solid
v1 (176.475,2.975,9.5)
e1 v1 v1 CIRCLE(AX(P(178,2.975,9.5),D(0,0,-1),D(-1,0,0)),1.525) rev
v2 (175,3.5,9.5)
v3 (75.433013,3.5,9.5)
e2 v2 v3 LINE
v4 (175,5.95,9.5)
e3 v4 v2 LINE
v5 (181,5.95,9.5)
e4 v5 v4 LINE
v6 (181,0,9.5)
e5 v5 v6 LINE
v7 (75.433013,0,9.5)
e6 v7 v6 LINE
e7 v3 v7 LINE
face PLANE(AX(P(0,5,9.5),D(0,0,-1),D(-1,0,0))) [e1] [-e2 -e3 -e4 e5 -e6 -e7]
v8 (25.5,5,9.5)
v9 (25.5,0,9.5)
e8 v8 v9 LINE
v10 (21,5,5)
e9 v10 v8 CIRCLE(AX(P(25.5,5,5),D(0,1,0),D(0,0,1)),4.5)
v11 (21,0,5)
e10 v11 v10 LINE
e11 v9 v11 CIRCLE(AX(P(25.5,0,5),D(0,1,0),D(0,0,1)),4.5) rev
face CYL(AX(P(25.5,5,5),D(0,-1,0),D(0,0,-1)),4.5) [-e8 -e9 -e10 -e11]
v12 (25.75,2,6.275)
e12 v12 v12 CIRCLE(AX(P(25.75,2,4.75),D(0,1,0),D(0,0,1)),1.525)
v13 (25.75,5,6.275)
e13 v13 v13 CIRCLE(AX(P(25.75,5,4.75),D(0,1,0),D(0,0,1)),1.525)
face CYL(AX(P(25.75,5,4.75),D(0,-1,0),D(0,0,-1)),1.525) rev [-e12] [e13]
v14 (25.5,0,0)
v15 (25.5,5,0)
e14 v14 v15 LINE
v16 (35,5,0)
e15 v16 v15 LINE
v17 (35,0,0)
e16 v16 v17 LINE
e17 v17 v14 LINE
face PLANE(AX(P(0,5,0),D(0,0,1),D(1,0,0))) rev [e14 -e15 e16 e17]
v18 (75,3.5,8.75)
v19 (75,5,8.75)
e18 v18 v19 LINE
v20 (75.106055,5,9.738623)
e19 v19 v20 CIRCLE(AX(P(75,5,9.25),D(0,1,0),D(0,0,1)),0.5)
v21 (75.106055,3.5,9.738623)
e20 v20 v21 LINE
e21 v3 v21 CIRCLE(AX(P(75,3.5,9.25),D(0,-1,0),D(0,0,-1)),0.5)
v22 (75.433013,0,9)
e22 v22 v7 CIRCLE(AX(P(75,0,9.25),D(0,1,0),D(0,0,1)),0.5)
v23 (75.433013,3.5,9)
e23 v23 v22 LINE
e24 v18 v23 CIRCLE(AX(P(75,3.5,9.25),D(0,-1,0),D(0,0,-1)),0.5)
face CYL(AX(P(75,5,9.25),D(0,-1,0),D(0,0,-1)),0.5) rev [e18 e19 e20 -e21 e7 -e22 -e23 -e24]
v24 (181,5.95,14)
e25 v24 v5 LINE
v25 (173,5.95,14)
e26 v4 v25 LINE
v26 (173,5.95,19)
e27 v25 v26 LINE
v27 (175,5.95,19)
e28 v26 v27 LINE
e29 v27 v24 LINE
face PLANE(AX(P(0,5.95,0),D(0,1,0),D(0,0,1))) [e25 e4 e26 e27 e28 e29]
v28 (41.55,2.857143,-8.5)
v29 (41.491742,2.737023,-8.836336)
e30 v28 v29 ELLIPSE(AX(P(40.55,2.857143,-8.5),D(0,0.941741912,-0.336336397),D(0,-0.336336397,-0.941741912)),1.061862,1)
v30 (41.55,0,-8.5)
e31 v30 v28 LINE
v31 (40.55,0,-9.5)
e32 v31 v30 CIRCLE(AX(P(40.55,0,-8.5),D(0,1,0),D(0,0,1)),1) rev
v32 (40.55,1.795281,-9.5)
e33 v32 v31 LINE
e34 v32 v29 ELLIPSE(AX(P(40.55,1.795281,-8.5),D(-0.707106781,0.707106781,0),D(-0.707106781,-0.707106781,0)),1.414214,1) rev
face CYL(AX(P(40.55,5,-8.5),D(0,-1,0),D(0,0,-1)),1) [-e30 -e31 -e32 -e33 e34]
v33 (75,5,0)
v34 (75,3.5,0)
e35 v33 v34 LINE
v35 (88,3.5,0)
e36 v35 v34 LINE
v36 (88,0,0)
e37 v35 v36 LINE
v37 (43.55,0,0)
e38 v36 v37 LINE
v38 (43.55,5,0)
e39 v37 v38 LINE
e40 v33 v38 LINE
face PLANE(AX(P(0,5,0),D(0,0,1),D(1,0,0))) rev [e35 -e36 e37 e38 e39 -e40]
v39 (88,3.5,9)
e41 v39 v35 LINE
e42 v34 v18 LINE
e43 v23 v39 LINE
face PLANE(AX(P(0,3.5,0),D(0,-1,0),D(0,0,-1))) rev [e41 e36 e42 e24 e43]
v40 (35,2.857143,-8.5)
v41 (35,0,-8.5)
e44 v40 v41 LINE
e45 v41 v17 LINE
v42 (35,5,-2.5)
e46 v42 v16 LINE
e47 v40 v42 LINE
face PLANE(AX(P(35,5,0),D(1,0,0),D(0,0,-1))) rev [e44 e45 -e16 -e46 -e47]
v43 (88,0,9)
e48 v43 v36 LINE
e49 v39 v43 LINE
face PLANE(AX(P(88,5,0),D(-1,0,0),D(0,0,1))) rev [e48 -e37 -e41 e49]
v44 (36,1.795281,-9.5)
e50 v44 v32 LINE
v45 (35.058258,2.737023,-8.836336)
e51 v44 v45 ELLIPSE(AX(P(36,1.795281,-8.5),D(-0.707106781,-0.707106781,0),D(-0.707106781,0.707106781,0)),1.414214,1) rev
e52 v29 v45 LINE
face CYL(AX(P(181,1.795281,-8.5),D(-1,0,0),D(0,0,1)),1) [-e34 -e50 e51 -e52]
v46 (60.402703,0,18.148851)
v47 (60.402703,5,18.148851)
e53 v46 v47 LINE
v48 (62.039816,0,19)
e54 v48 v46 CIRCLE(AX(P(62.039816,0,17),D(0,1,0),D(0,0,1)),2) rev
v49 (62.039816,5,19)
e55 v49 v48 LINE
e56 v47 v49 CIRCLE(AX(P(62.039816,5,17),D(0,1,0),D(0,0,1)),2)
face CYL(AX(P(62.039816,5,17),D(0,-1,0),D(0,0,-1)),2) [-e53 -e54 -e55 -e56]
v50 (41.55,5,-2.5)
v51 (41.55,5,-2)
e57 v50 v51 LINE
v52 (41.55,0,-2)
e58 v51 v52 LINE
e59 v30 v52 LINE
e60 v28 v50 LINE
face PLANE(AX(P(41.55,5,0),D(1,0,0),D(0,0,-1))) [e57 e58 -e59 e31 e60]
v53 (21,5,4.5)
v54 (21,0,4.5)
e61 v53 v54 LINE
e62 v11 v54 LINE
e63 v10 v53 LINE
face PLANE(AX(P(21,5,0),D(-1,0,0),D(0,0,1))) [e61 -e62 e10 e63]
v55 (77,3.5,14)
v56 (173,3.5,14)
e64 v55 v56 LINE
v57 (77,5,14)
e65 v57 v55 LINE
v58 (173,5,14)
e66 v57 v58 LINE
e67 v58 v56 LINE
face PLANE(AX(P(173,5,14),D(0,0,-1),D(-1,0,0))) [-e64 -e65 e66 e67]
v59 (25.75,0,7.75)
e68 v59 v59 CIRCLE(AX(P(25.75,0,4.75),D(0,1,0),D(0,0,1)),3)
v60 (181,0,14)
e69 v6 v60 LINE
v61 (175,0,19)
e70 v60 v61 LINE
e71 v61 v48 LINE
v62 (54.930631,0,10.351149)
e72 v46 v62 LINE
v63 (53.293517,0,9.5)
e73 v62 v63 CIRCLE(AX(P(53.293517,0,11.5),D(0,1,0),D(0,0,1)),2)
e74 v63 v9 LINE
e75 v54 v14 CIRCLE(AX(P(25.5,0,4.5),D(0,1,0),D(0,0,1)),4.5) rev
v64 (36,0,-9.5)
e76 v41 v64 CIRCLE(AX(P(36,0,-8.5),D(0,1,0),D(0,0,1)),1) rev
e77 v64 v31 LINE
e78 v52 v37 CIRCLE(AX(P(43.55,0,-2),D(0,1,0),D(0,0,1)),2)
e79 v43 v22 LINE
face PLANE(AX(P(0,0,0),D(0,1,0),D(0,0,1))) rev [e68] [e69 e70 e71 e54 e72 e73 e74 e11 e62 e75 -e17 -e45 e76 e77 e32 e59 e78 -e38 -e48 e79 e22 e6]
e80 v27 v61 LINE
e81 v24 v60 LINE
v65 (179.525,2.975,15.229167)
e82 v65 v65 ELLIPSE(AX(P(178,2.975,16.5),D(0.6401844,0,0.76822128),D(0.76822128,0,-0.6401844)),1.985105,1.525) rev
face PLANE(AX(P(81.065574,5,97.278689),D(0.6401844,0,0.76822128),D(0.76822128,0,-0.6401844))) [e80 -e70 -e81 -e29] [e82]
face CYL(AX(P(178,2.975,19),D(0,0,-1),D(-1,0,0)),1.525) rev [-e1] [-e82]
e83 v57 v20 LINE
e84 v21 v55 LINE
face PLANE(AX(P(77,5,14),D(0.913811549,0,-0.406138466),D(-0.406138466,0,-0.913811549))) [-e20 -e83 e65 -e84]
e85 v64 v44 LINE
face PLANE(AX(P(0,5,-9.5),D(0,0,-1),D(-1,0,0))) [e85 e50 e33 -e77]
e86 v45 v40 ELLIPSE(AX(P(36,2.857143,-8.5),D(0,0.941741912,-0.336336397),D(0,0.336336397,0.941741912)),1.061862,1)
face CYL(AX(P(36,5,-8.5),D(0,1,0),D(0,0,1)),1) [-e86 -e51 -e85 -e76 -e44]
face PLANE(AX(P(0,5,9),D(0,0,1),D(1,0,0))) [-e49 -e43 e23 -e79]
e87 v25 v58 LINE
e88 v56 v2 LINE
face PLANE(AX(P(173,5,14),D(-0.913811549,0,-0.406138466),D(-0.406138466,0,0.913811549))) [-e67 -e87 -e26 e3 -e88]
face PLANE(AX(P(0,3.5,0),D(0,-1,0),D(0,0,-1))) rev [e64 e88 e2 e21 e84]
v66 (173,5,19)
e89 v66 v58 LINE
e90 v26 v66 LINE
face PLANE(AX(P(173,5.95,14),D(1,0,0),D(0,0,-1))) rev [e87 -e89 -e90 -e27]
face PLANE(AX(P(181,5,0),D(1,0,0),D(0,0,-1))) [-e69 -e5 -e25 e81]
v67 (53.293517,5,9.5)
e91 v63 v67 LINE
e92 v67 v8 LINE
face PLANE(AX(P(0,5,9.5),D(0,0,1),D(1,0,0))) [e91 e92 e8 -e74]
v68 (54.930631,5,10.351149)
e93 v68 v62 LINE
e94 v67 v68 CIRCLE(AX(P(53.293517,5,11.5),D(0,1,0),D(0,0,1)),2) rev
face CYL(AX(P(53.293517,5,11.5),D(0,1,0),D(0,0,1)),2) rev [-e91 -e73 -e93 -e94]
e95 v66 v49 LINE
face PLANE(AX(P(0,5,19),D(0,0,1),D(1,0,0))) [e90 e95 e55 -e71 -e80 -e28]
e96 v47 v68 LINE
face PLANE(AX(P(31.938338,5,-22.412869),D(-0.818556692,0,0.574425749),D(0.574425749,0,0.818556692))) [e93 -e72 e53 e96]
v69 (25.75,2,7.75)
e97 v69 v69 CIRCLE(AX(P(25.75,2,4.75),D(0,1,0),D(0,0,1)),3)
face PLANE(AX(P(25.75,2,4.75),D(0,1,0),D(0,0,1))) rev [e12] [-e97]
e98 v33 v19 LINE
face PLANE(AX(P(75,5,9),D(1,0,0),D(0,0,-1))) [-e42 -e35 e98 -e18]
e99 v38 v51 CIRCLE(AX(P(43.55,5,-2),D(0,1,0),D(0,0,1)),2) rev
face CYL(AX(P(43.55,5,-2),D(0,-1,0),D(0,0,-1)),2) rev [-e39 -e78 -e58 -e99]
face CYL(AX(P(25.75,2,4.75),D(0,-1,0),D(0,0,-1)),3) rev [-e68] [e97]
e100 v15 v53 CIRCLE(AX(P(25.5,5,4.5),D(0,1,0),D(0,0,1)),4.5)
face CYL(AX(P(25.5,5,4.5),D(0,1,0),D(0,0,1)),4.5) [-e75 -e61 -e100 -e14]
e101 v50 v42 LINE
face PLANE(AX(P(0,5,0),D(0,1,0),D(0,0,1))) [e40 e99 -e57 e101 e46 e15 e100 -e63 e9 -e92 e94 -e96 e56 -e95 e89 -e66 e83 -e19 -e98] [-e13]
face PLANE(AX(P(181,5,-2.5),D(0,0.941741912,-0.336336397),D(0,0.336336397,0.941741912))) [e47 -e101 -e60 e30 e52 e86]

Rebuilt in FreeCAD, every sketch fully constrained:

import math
import FreeCAD as App
import Part
import Sketcher
Q = App.Units.Quantity


def edges_at(feature, points):
    """Names of the edges that pass closest to the given points."""
    edges = feature.Shape.Edges
    near = lambda p: min(range(len(edges)), key=lambda i: edges[i].distToShape(Part.Vertex(*p))[0])
    return sorted({f"Edge{near(p) + 1}" for p in points})

doc = App.newDocument("Part")
params = doc.addObject("Spreadsheet::Sheet", "Params")
for row, (alias, value) in enumerate([
    ("sketch1_radius", "0.5 mm"),
    ("sketch1_diameter", "3.05 mm"),
    ("sketch1_width", "114 mm"),
    ("sketch1_width2", "14 mm"),
    ("sketch1_height", "9 mm"),
    ("pad1_length", "5 mm"),
    ("sketch2_width", "13 mm"),
    ("sketch2_width2", "100 mm"),
    ("sketch2_width3", "96 mm"),
    ("sketch2_height", "9 mm"),
    ("sketch3_diameter", "6 mm"),
    ("pocket2_length", "2 mm"),
    ("sketch4_width", "2 mm"),
    ("sketch4_width2", "6 mm"),
    ("sketch4_height", "5 mm"),
    ("sketch4_height2", "4.5 mm"),
    ("pad2_length", "5.95 mm"),
    ("sketch5_diameter", "3.05 mm"),
    ("fillet_radius", "4.5 mm"),
    ("sketch6_height", "7 mm"),
    ("sketch6_width", "2.5 mm"),
    ("fillet2_radius", "2 mm"),
    ("fillet3_radius", "1 mm"),
], start=1):
    params.set(f"A{row}", alias)
    params.set(f"B{row}", "=" + value)
    params.setAlias(f"B{row}", alias)

body = doc.addObject("PartDesign::Body", "Body")

# Sketch on XZ plane
sketch1 = doc.addObject("Sketcher::SketchObject", "Sketch")
body.addObject(sketch1)
sketch1.AttachmentSupport = (doc.XZ_Plane, [""])
sketch1.MapMode = "FlatFace"
sketch1.addGeometry([
    Part.LineSegment(App.Vector(21, 0, 0), App.Vector(21, 9.5, 0)),  # 0
    Part.LineSegment(App.Vector(21, 9.5, 0), App.Vector(54.3, 9.5, 0)),  # 1
    Part.LineSegment(App.Vector(54.3, 9.5, 0), App.Vector(61, 19, 0)),  # 2
    Part.LineSegment(App.Vector(61, 19, 0), App.Vector(175, 19, 0)),  # 3
    Part.LineSegment(App.Vector(175, 19, 0), App.Vector(181, 14, 0)),  # 4
    Part.LineSegment(App.Vector(181, 14, 0), App.Vector(181, 9.5, 0)),  # 5
    Part.LineSegment(App.Vector(181, 9.5, 0), App.Vector(75.4, 9.5, 0)),  # 6
    Part.ArcOfCircle(Part.Circle(App.Vector(75, 9.2, 0), App.Vector(0, 0, 1), 0.5), math.radians(30), math.radians(330)),  # 7
    Part.LineSegment(App.Vector(75.4, 9, 0), App.Vector(88, 9, 0)),  # 8
    Part.LineSegment(App.Vector(88, 9, 0), App.Vector(88, 0, 0)),  # 9
    Part.LineSegment(App.Vector(88, 0, 0), App.Vector(41.5, 0, 0)),  # 10
    Part.LineSegment(App.Vector(41.5, 0, 0), App.Vector(41.5, -9.5, 0)),  # 11
    Part.LineSegment(App.Vector(41.5, -9.5, 0), App.Vector(35, -9.5, 0)),  # 12
    Part.LineSegment(App.Vector(35, -9.5, 0), App.Vector(35, 0, 0)),  # 13
    Part.LineSegment(App.Vector(35, 0, 0), App.Vector(21, 0, 0)),  # 14
    Part.Circle(App.Vector(25.8, 4.8, 0), App.Vector(0, 0, 1), 1.5),  # 15
], False)
sketch1.addConstraint([
    Sketcher.Constraint("Coincident", 0, 2, 1, 1),
    Sketcher.Constraint("Coincident", 1, 2, 2, 1),
    Sketcher.Constraint("Coincident", 2, 2, 3, 1),
    Sketcher.Constraint("Coincident", 3, 2, 4, 1),
    Sketcher.Constraint("Coincident", 4, 2, 5, 1),
    Sketcher.Constraint("Coincident", 5, 2, 6, 1),
    Sketcher.Constraint("Coincident", 6, 2, 7, 1),
    Sketcher.Constraint("Coincident", 7, 2, 8, 1),
    Sketcher.Constraint("Coincident", 8, 2, 9, 1),
    Sketcher.Constraint("Coincident", 9, 2, 10, 1),
    Sketcher.Constraint("Coincident", 10, 2, 11, 1),
    Sketcher.Constraint("Coincident", 11, 2, 12, 1),
    Sketcher.Constraint("Coincident", 12, 2, 13, 1),
    Sketcher.Constraint("Coincident", 13, 2, 14, 1),
    Sketcher.Constraint("Coincident", 14, 2, 0, 1),
    Sketcher.Constraint("Vertical", 0),
    Sketcher.Constraint("Horizontal", 1),
    Sketcher.Constraint("Horizontal", 3),
    Sketcher.Constraint("Vertical", 5),
    Sketcher.Constraint("Horizontal", 6),
    Sketcher.Constraint("Horizontal", 8),
    Sketcher.Constraint("Vertical", 9),
    Sketcher.Constraint("Horizontal", 10),
    Sketcher.Constraint("Vertical", 11),
    Sketcher.Constraint("Horizontal", 12),
    Sketcher.Constraint("Vertical", 13),
    Sketcher.Constraint("Horizontal", 14),
    Sketcher.Constraint("PointOnObject", 9, 2, -1),
    Sketcher.Constraint("PointOnObject", 13, 2, -1),
    Sketcher.Constraint("Horizontal", 1, 2, 5, 2),
    Sketcher.Constraint("Vertical", 6, 2, 7, 2),
    Sketcher.Constraint("Equal", 0, 11),
    Sketcher.Constraint("Radius", 7, Q("0.5 mm")),
    Sketcher.Constraint("Diameter", 15, Q("3.05 mm")),
    Sketcher.Constraint("DistanceX", 3, 1, 3, 2, Q("114 mm")),
    Sketcher.Constraint("DistanceX", 14, 2, 14, 1, Q("14 mm")),
    Sketcher.Constraint("DistanceY", 9, 2, 9, 1, Q("9 mm")),
    Sketcher.Constraint("DistanceY", 0, 1, 0, 2, Q("9.5 mm")),
    Sketcher.Constraint("DistanceY", 5, 2, 5, 1, Q("4.5 mm")),
    Sketcher.Constraint("DistanceX", -1, 1, 7, 3, Q("75 mm")),
    Sketcher.Constraint("DistanceX", -1, 1, 0, 2, Q("21 mm")),
    Sketcher.Constraint("DistanceX", -1, 1, 2, 2, Q("61 mm")),
    Sketcher.Constraint("DistanceY", -1, 1, 2, 2, Q("19 mm")),
    Sketcher.Constraint("DistanceX", -1, 1, 4, 2, Q("181 mm")),
    Sketcher.Constraint("DistanceX", -1, 1, 8, 2, Q("88 mm")),
    Sketcher.Constraint("DistanceX", 10, 2, 10, 1, Q("46.45 mm")),
    Sketcher.Constraint("DistanceY", 15, 3, 7, 3, Q("4.5 mm")),
    Sketcher.Constraint("DistanceX", 15, 3, 10, 2, Q("15.8 mm")),
    Sketcher.Constraint("DistanceX", 1, 1, 1, 2, Q("33.333333 mm")),
])
sketch1.setExpression("Constraints[32]", "Params.sketch1_radius")
sketch1.setExpression("Constraints[33]", "Params.sketch1_diameter")
sketch1.setExpression("Constraints[34]", "Params.sketch1_width")
sketch1.setExpression("Constraints[35]", "Params.sketch1_width2")
sketch1.setExpression("Constraints[36]", "Params.sketch1_height")
pad1 = doc.addObject("PartDesign::Pad", "Pad")
body.addObject(pad1)
pad1.Profile = sketch1
pad1.setExpression("Length", "Params.pad1_length")
pad1.Reversed = True

# Sketch on XZ plane
sketch2 = doc.addObject("Sketcher::SketchObject", "Sketch001")
body.addObject(sketch2)
sketch2.AttachmentSupport = (doc.XZ_Plane, [""])
sketch2.MapMode = "FlatFace"
sketch2.AttachmentOffset = App.Placement(App.Vector(0, 0, -3.5), App.Rotation())
sketch2.addGeometry([
    Part.LineSegment(App.Vector(75, 0, 0), App.Vector(75, 9, 0)),  # 0
    Part.LineSegment(App.Vector(75, 9, 0), App.Vector(88, 9, 0)),  # 1
    Part.LineSegment(App.Vector(88, 9, 0), App.Vector(88, 0, 0)),  # 2
    Part.LineSegment(App.Vector(88, 0, 0), App.Vector(75, 0, 0)),  # 3
    Part.LineSegment(App.Vector(175, 9.5, 0), App.Vector(75, 9.5, 0)),  # 4
    Part.LineSegment(App.Vector(75, 9.5, 0), App.Vector(77, 14, 0)),  # 5
    Part.LineSegment(App.Vector(77, 14, 0), App.Vector(173, 14, 0)),  # 6
    Part.LineSegment(App.Vector(173, 14, 0), App.Vector(175, 9.5, 0)),  # 7
], False)
sketch2.addConstraint([
    Sketcher.Constraint("Coincident", 0, 2, 1, 1),
    Sketcher.Constraint("Coincident", 1, 2, 2, 1),
    Sketcher.Constraint("Coincident", 2, 2, 3, 1),
    Sketcher.Constraint("Coincident", 3, 2, 0, 1),
    Sketcher.Constraint("Coincident", 4, 2, 5, 1),
    Sketcher.Constraint("Coincident", 5, 2, 6, 1),
    Sketcher.Constraint("Coincident", 6, 2, 7, 1),
    Sketcher.Constraint("Coincident", 7, 2, 4, 1),
    Sketcher.Constraint("Vertical", 0),
    Sketcher.Constraint("Horizontal", 1),
    Sketcher.Constraint("Vertical", 2),
    Sketcher.Constraint("Horizontal", 3),
    Sketcher.Constraint("Horizontal", 4),
    Sketcher.Constraint("Horizontal", 6),
    Sketcher.Constraint("PointOnObject", 2, 2, -1),
    Sketcher.Constraint("Vertical", 3, 2, 4, 2),
    Sketcher.Constraint("Equal", 5, 7),
    Sketcher.Constraint("DistanceX", 1, 1, 1, 2, Q("13 mm")),
    Sketcher.Constraint("DistanceX", 4, 2, 4, 1, Q("100 mm")),
    Sketcher.Constraint("DistanceX", 6, 1, 6, 2, Q("96 mm")),
    Sketcher.Constraint("DistanceY", 0, 1, 0, 2, Q("9 mm")),
    Sketcher.Constraint("DistanceX", -1, 1, 0, 2, Q("75 mm")),
    Sketcher.Constraint("DistanceY", -1, 1, 5, 2, Q("14 mm")),
    Sketcher.Constraint("DistanceY", -1, 1, 4, 2, Q("9.5 mm")),
])
sketch2.setExpression("Constraints[17]", "Params.sketch2_width")
sketch2.setExpression("Constraints[18]", "Params.sketch2_width2")
sketch2.setExpression("Constraints[19]", "Params.sketch2_width3")
sketch2.setExpression("Constraints[20]", "Params.sketch2_height")
pocket1 = doc.addObject("PartDesign::Pocket", "Pocket")
body.addObject(pocket1)
pocket1.Profile = sketch2
pocket1.Type = "ThroughAll"

# Sketch on XZ plane
sketch3 = doc.addObject("Sketcher::SketchObject", "Sketch002")
body.addObject(sketch3)
sketch3.AttachmentSupport = (doc.XZ_Plane, [""])
sketch3.MapMode = "FlatFace"
sketch3.addGeometry(Part.Circle(App.Vector(25.8, 4.8, 0), App.Vector(0, 0, 1), 3), False)
sketch3.addConstraint([
    Sketcher.Constraint("Diameter", 0, Q("6 mm")),
    Sketcher.Constraint("DistanceX", -1, 1, 0, 3, Q("25.75 mm")),
    Sketcher.Constraint("DistanceY", -1, 1, 0, 3, Q("4.75 mm")),
])
sketch3.setExpression("Constraints[0]", "Params.sketch3_diameter")
pocket2 = doc.addObject("PartDesign::Pocket", "Pocket001")
body.addObject(pocket2)
pocket2.Profile = sketch3
pocket2.setExpression("Length", "Params.pocket2_length")

# Sketch on XZ plane
sketch4 = doc.addObject("Sketcher::SketchObject", "Sketch003")
body.addObject(sketch4)
sketch4.AttachmentSupport = (doc.XZ_Plane, [""])
sketch4.MapMode = "FlatFace"
sketch4.addGeometry([
    Part.LineSegment(App.Vector(173, 14, 0), App.Vector(173, 19, 0)),  # 0
    Part.LineSegment(App.Vector(173, 19, 0), App.Vector(175, 19, 0)),  # 1
    Part.LineSegment(App.Vector(175, 19, 0), App.Vector(181, 14, 0)),  # 2
    Part.LineSegment(App.Vector(181, 14, 0), App.Vector(181, 9.5, 0)),  # 3
    Part.LineSegment(App.Vector(181, 9.5, 0), App.Vector(175, 9.5, 0)),  # 4
    Part.LineSegment(App.Vector(175, 9.5, 0), App.Vector(173, 14, 0)),  # 5
], False)
sketch4.addConstraint([
    Sketcher.Constraint("Coincident", 0, 2, 1, 1),
    Sketcher.Constraint("Coincident", 1, 2, 2, 1),
    Sketcher.Constraint("Coincident", 2, 2, 3, 1),
    Sketcher.Constraint("Coincident", 3, 2, 4, 1),
    Sketcher.Constraint("Coincident", 4, 2, 5, 1),
    Sketcher.Constraint("Coincident", 5, 2, 0, 1),
    Sketcher.Constraint("Vertical", 0),
    Sketcher.Constraint("Horizontal", 1),
    Sketcher.Constraint("Vertical", 3),
    Sketcher.Constraint("Horizontal", 4),
    Sketcher.Constraint("Horizontal", 2, 2, 5, 2),
    Sketcher.Constraint("Vertical", 1, 2, 4, 2),
    Sketcher.Constraint("DistanceX", 1, 1, 1, 2, Q("2 mm")),
    Sketcher.Constraint("DistanceX", 4, 2, 4, 1, Q("6 mm")),
    Sketcher.Constraint("DistanceY", 0, 1, 0, 2, Q("5 mm")),
    Sketcher.Constraint("DistanceY", 3, 2, 3, 1, Q("4.5 mm")),
    Sketcher.Constraint("DistanceX", -1, 1, 0, 2, Q("173 mm")),
    Sketcher.Constraint("DistanceY", -1, 1, 0, 2, Q("19 mm")),
])
sketch4.setExpression("Constraints[12]", "Params.sketch4_width")
sketch4.setExpression("Constraints[13]", "Params.sketch4_width2")
sketch4.setExpression("Constraints[14]", "Params.sketch4_height")
sketch4.setExpression("Constraints[15]", "Params.sketch4_height2")
pad2 = doc.addObject("PartDesign::Pad", "Pad001")
body.addObject(pad2)
pad2.Profile = sketch4
pad2.setExpression("Length", "Params.pad2_length")
pad2.Reversed = True

# Sketch on XY plane
sketch5 = doc.addObject("Sketcher::SketchObject", "Sketch004")
body.addObject(sketch5)
sketch5.AttachmentSupport = (doc.XY_Plane, [""])
sketch5.MapMode = "FlatFace"
sketch5.addGeometry(Part.Circle(App.Vector(178, 3, 0), App.Vector(0, 0, 1), 1.5), False)
sketch5.addConstraint([
    Sketcher.Constraint("Diameter", 0, Q("3.05 mm")),
    Sketcher.Constraint("DistanceX", -1, 1, 0, 3, Q("178 mm")),
    Sketcher.Constraint("DistanceY", -1, 1, 0, 3, Q("2.975 mm")),
])
sketch5.setExpression("Constraints[0]", "Params.sketch5_diameter")
pocket3 = doc.addObject("PartDesign::Pocket", "Pocket002")
body.addObject(pocket3)
pocket3.Profile = sketch5
pocket3.Type = "ThroughAll"
pocket3.Reversed = True
doc.recompute()

fillet = doc.addObject("PartDesign::Fillet", "Fillet")
body.addObject(fillet)
fillet.Base = (pocket3, edges_at(pocket3, [(21, 2.5, 9.5), (21, 2.5, 0)]))
fillet.setExpression("Radius", "Params.fillet_radius")

# Sketch on YZ plane
sketch6 = doc.addObject("Sketcher::SketchObject", "Sketch005")
body.addObject(sketch6)
sketch6.AttachmentSupport = (doc.YZ_Plane, [""])
sketch6.MapMode = "FlatFace"
sketch6.addGeometry([
    Part.LineSegment(App.Vector(5, -2.5, 0), App.Vector(2.5, -9.5, 0)),
    Part.LineSegment(App.Vector(2.5, -9.5, 0), App.Vector(5, -9.5, 0)),
    Part.LineSegment(App.Vector(5, -9.5, 0), App.Vector(5, -2.5, 0)),
], False)
sketch6.addConstraint([
    Sketcher.Constraint("Coincident", 0, 2, 1, 1),
    Sketcher.Constraint("Coincident", 1, 2, 2, 1),
    Sketcher.Constraint("Coincident", 2, 2, 0, 1),
    Sketcher.Constraint("Horizontal", 1),
    Sketcher.Constraint("Vertical", 2),
    Sketcher.Constraint("DistanceY", 2, 1, 2, 2, Q("7 mm")),
    Sketcher.Constraint("DistanceX", 1, 1, 1, 2, Q("2.5 mm")),
    Sketcher.Constraint("DistanceX", -1, 1, 1, 2, Q("5 mm")),
    Sketcher.Constraint("DistanceY", 0, 2, -1, 1, Q("9.5 mm")),
])
sketch6.setExpression("Constraints[5]", "Params.sketch6_height")
sketch6.setExpression("Constraints[6]", "Params.sketch6_width")
pocket4 = doc.addObject("PartDesign::Pocket", "Pocket003")
body.addObject(pocket4)
pocket4.Profile = sketch6
pocket4.Type = "ThroughAll"
pocket4.Reversed = True
doc.recompute()

fillet2 = doc.addObject("PartDesign::Fillet", "Fillet001")
body.addObject(fillet2)
fillet2.Base = (pocket4, edges_at(pocket4, [(61, 2.5, 19), (54.333, 2.5, 9.5), (41.55, 2.5, 0)]))
fillet2.setExpression("Radius", "Params.fillet2_radius")
doc.recompute()

fillet3 = doc.addObject("PartDesign::Fillet", "Fillet002")
body.addObject(fillet3)
fillet3.Base = (fillet2, edges_at(fillet2, [(35, 1.25, -9.5), (41.55, 1.25, -9.5), (38.275, 2.5, -9.5)]))
fillet3.setExpression("Radius", "Params.fillet3_radius")

doc.recompute()
